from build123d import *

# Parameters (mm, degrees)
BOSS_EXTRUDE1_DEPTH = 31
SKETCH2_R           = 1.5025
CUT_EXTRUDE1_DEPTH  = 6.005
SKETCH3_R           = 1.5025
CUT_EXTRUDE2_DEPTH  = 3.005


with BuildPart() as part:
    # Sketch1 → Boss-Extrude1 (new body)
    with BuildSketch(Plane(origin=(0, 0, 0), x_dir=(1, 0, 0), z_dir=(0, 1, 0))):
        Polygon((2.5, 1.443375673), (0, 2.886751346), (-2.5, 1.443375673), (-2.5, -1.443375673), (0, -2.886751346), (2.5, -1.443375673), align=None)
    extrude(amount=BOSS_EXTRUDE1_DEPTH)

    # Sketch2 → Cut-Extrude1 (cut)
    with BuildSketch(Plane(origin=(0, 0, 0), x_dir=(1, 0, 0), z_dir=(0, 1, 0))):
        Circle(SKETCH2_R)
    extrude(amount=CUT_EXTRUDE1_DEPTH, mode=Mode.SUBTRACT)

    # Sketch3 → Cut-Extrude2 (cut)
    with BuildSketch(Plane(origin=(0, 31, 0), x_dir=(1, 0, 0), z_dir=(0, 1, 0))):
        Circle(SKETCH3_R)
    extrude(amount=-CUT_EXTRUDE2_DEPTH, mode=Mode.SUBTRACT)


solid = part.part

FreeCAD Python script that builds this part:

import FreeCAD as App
import Part
import Sketcher

V = App.Vector
Q = App.Units.Quantity


def add_polygon(sketch, points):
    """Adds a closed chain of lines whose ends are joined by coincident constraints."""
    first, n = sketch.GeometryCount, len(points)
    for a, b in zip(points, points[1:] + points[:1]):
        sketch.addGeometry(Part.LineSegment(App.Vector(*a, 0), App.Vector(*b, 0)), False)
    for i in range(n):
        sketch.addConstraint(Sketcher.Constraint("Coincident", first + i, 2, first + (i + 1) % n, 1))

doc = App.newDocument("Part")
body = doc.addObject("PartDesign::Body", "Body")

# Sketch on XZ plane
sketch1 = body.newObject("Sketcher::SketchObject", "Sketch")
sketch1.AttachmentSupport = (doc.getObject("XZ_Plane"), [""])
sketch1.MapMode = "FlatFace"
add_polygon(sketch1, [(2.5, -1.443376), (0, -2.886751), (-2.5, -1.443376), (-2.5, 1.443376), (0, 2.886751), (2.5, 1.443376)])  # lines 0-5
sketch1.addConstraint([
    Sketcher.Constraint("Vertical", 2),
    Sketcher.Constraint("Vertical", 5),
    Sketcher.Constraint("Symmetric", 0, 2, 3, 2, -1, 1),
    Sketcher.Constraint("Symmetric", 1, 2, 4, 2, -1, 1),
    Sketcher.Constraint("PointOnObject", 0, 2, -2),
    Sketcher.Constraint("Parallel", 0, 3),
    Sketcher.Constraint("Horizontal", 2, 2, 4, 2),
    Sketcher.Constraint("Angle", 0, Q("-150 deg")),
    Sketcher.Constraint("DistanceX", 2, 2, 4, 2, Q("5 mm")),
    Sketcher.Constraint("DistanceY", 2, 1, 2, 2, Q("2.886751 mm")),
])
pad1 = body.newObject("PartDesign::Pad", "Pad")
pad1.Profile = sketch1
pad1.Length = 31
pad1.Reversed = True

# Sketch on XZ plane
sketch2 = body.newObject("Sketcher::SketchObject", "Sketch001")
sketch2.AttachmentSupport = (doc.getObject("XZ_Plane"), [""])
sketch2.MapMode = "FlatFace"
sketch2.addGeometry(Part.Circle(V(0, 0, 0), V(0, 0, 1), 1.5025), False)
sketch2.addConstraint([
    Sketcher.Constraint("Coincident", 0, 3, -1, 1),
    Sketcher.Constraint("Diameter", 0, Q("3.005 mm")),
])
pocket1 = body.newObject("PartDesign::Pocket", "Pocket")
pocket1.Profile = sketch2
pocket1.Length = 6.005

# Sketch on XZ plane
sketch3 = body.newObject("Sketcher::SketchObject", "Sketch002")
sketch3.AttachmentSupport = (doc.getObject("XZ_Plane"), [""])
sketch3.MapMode = "FlatFace"
sketch3.AttachmentOffset = App.Placement(V(0, 0, -31), App.Rotation())
sketch3.addGeometry(Part.Circle(V(0, 0, 0), V(0, 0, 1), 1.5025), False)
sketch3.addConstraint([
    Sketcher.Constraint("Coincident", 0, 3, -1, 1),
    Sketcher.Constraint("Diameter", 0, Q("3.005 mm")),
])
pocket2 = body.newObject("PartDesign::Pocket", "Pocket001")
pocket2.Profile = sketch3
pocket2.Length = 3.005
pocket2.Reversed = True

doc.recompute()
